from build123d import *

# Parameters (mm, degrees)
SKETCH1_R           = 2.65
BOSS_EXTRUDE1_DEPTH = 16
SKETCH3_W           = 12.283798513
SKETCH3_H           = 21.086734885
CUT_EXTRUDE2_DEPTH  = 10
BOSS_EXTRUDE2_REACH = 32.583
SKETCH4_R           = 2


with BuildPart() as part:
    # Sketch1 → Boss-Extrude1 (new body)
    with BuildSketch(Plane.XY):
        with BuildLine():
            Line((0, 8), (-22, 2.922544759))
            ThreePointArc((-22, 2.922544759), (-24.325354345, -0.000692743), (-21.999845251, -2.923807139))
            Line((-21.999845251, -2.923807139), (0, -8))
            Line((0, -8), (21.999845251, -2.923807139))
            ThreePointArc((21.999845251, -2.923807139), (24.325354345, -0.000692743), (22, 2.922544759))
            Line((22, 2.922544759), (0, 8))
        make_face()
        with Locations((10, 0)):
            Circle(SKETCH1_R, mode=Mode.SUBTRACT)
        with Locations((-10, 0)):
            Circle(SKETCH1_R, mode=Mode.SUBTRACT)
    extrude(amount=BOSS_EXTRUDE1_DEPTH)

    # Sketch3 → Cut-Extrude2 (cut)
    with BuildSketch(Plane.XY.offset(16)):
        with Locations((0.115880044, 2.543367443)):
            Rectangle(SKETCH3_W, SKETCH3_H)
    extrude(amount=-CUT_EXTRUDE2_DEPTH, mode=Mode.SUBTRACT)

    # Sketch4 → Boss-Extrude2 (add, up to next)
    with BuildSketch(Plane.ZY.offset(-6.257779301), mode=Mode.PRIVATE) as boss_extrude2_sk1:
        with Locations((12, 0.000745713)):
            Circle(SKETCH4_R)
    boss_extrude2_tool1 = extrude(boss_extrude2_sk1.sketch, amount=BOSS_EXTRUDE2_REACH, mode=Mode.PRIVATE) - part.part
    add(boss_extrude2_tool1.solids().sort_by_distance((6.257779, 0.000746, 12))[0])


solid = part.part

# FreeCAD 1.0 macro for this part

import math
import FreeCAD as App
import Part
import Sketcher
from FreeCAD import Vector
Q = App.Units.Quantity


def add_polygon(sketch, points):
    """Adds a closed chain of lines whose ends are joined by coincident constraints."""
    first, n = sketch.GeometryCount, len(points)
    for a, b in zip(points, points[1:] + points[:1]):
        sketch.addGeometry(Part.LineSegment(App.Vector(*a, 0), App.Vector(*b, 0)), False)
    for i in range(n):
        sketch.addConstraint(Sketcher.Constraint("Coincident", first + i, 2, first + (i + 1) % n, 1))

doc = App.newDocument("Part")
params = doc.addObject("Spreadsheet::Sheet", "Params")
for row, (alias, value) in enumerate([
    ("sketch1_radius", "3 mm"),
    ("sketch1_diameter", "5.3 mm"),
    ("pad1_length", "16 mm"),
    ("pocket1_length", "10 mm"),
    ("sketch3_diameter", "4 mm"),
], start=1):
    params.set(f"A{row}", alias)
    params.set(f"B{row}", "=" + value)
    params.setAlias(f"B{row}", alias)

body = doc.addObject("PartDesign::Body", "Body")

sketch1 = body.newObject("Sketcher::SketchObject", "Sketch")
sketch1.AttachmentSupport = (doc.getObject("XY_Plane"), [""])
sketch1.MapMode = "FlatFace"
sketch1.addGeometry([
    Part.LineSegment(Vector(0, 8, 0), Vector(-22, 2.9, 0)),
    Part.ArcOfCircle(Part.Circle(Vector(-21.3, 0, 0), Vector(0, 0, 1), 3), math.radians(103), math.radians(257)),
    Part.LineSegment(Vector(-22, -2.9, 0), Vector(0, -8, 0)),
    Part.LineSegment(Vector(0, -8, 0), Vector(22, -2.9, 0)),
    Part.ArcOfCircle(Part.Circle(Vector(21.3, 0, 0), Vector(0, 0, 1), 3), math.radians(-77), math.radians(77)),
    Part.LineSegment(Vector(22, 2.9, 0), Vector(0, 8, 0)),
    Part.Circle(Vector(-10, 0, 0), Vector(0, 0, 1), 2.6),
    Part.Circle(Vector(10, 0, 0), Vector(0, 0, 1), 2.6),
], False)
sketch1.addConstraint([
    Sketcher.Constraint("Tangent", 0, 2, 1, 1),
    Sketcher.Constraint("Tangent", 1, 2, 2, 1),
    Sketcher.Constraint("Coincident", 2, 2, 3, 1),
    Sketcher.Constraint("Tangent", 3, 2, 4, 1),
    Sketcher.Constraint("Tangent", 4, 2, 5, 1),
    Sketcher.Constraint("Coincident", 5, 2, 0, 1),
    Sketcher.Constraint("Equal", 1, 4),
    Sketcher.Constraint("Equal", 6, 7),
    Sketcher.Constraint("Symmetric", 6, 3, 7, 3, -1, 1),
    Sketcher.Constraint("Symmetric", 2, 2, 5, 2, -1, 1),
    Sketcher.Constraint("Symmetric", 1, 3, 4, 3, -2),
    Sketcher.Constraint("PointOnObject", 6, 3, -1),
    Sketcher.Constraint("PointOnObject", 2, 2, -2),
    Sketcher.Constraint("Radius", 1, Q("3 mm")),
    Sketcher.Constraint("Diameter", 6, Q("5.3 mm")),
    Sketcher.Constraint("DistanceX", 6, 3, -1, 1, Q("10 mm")),
    Sketcher.Constraint("DistanceX", 0, 2, -1, 1, Q("22 mm")),
    Sketcher.Constraint("DistanceY", 2, 2, -1, 1, Q("8 mm")),
    Sketcher.Constraint("DistanceX", 1, 2, 4, 3, Q("43.3252 mm")),
])
sketch1.setExpression("Constraints[13]", "Params.sketch1_radius")
sketch1.setExpression("Constraints[14]", "Params.sketch1_diameter")
pad1 = body.newObject("PartDesign::Pad", "Pad")
pad1.Profile = sketch1
pad1.setExpression("Length", "Params.pad1_length")

sketch2 = body.newObject("Sketcher::SketchObject", "Sketch001")
sketch2.AttachmentSupport = (doc.getObject("XY_Plane"), [""])
sketch2.MapMode = "FlatFace"
sketch2.AttachmentOffset = App.Placement(Vector(0, 0, 16), App.Rotation())
add_polygon(sketch2, [(-6, 13), (-6, -8), (6, -8), (6, 13)])
sketch2.addConstraint([
    Sketcher.Constraint("Vertical", 0),
    Sketcher.Constraint("Horizontal", 1),
    Sketcher.Constraint("Vertical", 2),
    Sketcher.Constraint("Horizontal", 3),
    Sketcher.Constraint("DistanceY", 0, 2, -1, 1, Q("8 mm")),
    Sketcher.Constraint("DistanceX", 1, 1, 1, 2, Q("12.283799 mm")),
    Sketcher.Constraint("DistanceY", 0, 2, 0, 1, Q("21.086735 mm")),
    Sketcher.Constraint("DistanceX", 0, 2, -1, 1, Q("6.026019 mm")),
])
pocket1 = body.newObject("PartDesign::Pocket", "Pocket")
pocket1.Profile = sketch2
pocket1.setExpression("Length", "Params.pocket1_length")

sketch3 = body.newObject("Sketcher::SketchObject", "Sketch002")
sketch3.AttachmentSupport = (doc.getObject("YZ_Plane"), [""])
sketch3.MapMode = "FlatFace"
sketch3.AttachmentOffset = App.Placement(Vector(0, 0, 6.257779), App.Rotation())
sketch3.addGeometry(Part.Circle(Vector(0, 12, 0), Vector(0, 0, 1), 2), False)
sketch3.addConstraint([
    Sketcher.Constraint("Diameter", 0, Q("4 mm")),
    Sketcher.Constraint("DistanceY", -1, 1, 0, 3, Q("12 mm")),
    Sketcher.Constraint("DistanceX", -1, 1, 0, 3, Q("0.000746 mm")),
])
sketch3.setExpression("Constraints[0]", "Params.sketch3_diameter")
pad2 = body.newObject("PartDesign::Pad", "Pad001")
pad2.Profile = sketch3
pad2.Type = "UpToFirst"
pad2.Reversed = True

doc.recompute()
